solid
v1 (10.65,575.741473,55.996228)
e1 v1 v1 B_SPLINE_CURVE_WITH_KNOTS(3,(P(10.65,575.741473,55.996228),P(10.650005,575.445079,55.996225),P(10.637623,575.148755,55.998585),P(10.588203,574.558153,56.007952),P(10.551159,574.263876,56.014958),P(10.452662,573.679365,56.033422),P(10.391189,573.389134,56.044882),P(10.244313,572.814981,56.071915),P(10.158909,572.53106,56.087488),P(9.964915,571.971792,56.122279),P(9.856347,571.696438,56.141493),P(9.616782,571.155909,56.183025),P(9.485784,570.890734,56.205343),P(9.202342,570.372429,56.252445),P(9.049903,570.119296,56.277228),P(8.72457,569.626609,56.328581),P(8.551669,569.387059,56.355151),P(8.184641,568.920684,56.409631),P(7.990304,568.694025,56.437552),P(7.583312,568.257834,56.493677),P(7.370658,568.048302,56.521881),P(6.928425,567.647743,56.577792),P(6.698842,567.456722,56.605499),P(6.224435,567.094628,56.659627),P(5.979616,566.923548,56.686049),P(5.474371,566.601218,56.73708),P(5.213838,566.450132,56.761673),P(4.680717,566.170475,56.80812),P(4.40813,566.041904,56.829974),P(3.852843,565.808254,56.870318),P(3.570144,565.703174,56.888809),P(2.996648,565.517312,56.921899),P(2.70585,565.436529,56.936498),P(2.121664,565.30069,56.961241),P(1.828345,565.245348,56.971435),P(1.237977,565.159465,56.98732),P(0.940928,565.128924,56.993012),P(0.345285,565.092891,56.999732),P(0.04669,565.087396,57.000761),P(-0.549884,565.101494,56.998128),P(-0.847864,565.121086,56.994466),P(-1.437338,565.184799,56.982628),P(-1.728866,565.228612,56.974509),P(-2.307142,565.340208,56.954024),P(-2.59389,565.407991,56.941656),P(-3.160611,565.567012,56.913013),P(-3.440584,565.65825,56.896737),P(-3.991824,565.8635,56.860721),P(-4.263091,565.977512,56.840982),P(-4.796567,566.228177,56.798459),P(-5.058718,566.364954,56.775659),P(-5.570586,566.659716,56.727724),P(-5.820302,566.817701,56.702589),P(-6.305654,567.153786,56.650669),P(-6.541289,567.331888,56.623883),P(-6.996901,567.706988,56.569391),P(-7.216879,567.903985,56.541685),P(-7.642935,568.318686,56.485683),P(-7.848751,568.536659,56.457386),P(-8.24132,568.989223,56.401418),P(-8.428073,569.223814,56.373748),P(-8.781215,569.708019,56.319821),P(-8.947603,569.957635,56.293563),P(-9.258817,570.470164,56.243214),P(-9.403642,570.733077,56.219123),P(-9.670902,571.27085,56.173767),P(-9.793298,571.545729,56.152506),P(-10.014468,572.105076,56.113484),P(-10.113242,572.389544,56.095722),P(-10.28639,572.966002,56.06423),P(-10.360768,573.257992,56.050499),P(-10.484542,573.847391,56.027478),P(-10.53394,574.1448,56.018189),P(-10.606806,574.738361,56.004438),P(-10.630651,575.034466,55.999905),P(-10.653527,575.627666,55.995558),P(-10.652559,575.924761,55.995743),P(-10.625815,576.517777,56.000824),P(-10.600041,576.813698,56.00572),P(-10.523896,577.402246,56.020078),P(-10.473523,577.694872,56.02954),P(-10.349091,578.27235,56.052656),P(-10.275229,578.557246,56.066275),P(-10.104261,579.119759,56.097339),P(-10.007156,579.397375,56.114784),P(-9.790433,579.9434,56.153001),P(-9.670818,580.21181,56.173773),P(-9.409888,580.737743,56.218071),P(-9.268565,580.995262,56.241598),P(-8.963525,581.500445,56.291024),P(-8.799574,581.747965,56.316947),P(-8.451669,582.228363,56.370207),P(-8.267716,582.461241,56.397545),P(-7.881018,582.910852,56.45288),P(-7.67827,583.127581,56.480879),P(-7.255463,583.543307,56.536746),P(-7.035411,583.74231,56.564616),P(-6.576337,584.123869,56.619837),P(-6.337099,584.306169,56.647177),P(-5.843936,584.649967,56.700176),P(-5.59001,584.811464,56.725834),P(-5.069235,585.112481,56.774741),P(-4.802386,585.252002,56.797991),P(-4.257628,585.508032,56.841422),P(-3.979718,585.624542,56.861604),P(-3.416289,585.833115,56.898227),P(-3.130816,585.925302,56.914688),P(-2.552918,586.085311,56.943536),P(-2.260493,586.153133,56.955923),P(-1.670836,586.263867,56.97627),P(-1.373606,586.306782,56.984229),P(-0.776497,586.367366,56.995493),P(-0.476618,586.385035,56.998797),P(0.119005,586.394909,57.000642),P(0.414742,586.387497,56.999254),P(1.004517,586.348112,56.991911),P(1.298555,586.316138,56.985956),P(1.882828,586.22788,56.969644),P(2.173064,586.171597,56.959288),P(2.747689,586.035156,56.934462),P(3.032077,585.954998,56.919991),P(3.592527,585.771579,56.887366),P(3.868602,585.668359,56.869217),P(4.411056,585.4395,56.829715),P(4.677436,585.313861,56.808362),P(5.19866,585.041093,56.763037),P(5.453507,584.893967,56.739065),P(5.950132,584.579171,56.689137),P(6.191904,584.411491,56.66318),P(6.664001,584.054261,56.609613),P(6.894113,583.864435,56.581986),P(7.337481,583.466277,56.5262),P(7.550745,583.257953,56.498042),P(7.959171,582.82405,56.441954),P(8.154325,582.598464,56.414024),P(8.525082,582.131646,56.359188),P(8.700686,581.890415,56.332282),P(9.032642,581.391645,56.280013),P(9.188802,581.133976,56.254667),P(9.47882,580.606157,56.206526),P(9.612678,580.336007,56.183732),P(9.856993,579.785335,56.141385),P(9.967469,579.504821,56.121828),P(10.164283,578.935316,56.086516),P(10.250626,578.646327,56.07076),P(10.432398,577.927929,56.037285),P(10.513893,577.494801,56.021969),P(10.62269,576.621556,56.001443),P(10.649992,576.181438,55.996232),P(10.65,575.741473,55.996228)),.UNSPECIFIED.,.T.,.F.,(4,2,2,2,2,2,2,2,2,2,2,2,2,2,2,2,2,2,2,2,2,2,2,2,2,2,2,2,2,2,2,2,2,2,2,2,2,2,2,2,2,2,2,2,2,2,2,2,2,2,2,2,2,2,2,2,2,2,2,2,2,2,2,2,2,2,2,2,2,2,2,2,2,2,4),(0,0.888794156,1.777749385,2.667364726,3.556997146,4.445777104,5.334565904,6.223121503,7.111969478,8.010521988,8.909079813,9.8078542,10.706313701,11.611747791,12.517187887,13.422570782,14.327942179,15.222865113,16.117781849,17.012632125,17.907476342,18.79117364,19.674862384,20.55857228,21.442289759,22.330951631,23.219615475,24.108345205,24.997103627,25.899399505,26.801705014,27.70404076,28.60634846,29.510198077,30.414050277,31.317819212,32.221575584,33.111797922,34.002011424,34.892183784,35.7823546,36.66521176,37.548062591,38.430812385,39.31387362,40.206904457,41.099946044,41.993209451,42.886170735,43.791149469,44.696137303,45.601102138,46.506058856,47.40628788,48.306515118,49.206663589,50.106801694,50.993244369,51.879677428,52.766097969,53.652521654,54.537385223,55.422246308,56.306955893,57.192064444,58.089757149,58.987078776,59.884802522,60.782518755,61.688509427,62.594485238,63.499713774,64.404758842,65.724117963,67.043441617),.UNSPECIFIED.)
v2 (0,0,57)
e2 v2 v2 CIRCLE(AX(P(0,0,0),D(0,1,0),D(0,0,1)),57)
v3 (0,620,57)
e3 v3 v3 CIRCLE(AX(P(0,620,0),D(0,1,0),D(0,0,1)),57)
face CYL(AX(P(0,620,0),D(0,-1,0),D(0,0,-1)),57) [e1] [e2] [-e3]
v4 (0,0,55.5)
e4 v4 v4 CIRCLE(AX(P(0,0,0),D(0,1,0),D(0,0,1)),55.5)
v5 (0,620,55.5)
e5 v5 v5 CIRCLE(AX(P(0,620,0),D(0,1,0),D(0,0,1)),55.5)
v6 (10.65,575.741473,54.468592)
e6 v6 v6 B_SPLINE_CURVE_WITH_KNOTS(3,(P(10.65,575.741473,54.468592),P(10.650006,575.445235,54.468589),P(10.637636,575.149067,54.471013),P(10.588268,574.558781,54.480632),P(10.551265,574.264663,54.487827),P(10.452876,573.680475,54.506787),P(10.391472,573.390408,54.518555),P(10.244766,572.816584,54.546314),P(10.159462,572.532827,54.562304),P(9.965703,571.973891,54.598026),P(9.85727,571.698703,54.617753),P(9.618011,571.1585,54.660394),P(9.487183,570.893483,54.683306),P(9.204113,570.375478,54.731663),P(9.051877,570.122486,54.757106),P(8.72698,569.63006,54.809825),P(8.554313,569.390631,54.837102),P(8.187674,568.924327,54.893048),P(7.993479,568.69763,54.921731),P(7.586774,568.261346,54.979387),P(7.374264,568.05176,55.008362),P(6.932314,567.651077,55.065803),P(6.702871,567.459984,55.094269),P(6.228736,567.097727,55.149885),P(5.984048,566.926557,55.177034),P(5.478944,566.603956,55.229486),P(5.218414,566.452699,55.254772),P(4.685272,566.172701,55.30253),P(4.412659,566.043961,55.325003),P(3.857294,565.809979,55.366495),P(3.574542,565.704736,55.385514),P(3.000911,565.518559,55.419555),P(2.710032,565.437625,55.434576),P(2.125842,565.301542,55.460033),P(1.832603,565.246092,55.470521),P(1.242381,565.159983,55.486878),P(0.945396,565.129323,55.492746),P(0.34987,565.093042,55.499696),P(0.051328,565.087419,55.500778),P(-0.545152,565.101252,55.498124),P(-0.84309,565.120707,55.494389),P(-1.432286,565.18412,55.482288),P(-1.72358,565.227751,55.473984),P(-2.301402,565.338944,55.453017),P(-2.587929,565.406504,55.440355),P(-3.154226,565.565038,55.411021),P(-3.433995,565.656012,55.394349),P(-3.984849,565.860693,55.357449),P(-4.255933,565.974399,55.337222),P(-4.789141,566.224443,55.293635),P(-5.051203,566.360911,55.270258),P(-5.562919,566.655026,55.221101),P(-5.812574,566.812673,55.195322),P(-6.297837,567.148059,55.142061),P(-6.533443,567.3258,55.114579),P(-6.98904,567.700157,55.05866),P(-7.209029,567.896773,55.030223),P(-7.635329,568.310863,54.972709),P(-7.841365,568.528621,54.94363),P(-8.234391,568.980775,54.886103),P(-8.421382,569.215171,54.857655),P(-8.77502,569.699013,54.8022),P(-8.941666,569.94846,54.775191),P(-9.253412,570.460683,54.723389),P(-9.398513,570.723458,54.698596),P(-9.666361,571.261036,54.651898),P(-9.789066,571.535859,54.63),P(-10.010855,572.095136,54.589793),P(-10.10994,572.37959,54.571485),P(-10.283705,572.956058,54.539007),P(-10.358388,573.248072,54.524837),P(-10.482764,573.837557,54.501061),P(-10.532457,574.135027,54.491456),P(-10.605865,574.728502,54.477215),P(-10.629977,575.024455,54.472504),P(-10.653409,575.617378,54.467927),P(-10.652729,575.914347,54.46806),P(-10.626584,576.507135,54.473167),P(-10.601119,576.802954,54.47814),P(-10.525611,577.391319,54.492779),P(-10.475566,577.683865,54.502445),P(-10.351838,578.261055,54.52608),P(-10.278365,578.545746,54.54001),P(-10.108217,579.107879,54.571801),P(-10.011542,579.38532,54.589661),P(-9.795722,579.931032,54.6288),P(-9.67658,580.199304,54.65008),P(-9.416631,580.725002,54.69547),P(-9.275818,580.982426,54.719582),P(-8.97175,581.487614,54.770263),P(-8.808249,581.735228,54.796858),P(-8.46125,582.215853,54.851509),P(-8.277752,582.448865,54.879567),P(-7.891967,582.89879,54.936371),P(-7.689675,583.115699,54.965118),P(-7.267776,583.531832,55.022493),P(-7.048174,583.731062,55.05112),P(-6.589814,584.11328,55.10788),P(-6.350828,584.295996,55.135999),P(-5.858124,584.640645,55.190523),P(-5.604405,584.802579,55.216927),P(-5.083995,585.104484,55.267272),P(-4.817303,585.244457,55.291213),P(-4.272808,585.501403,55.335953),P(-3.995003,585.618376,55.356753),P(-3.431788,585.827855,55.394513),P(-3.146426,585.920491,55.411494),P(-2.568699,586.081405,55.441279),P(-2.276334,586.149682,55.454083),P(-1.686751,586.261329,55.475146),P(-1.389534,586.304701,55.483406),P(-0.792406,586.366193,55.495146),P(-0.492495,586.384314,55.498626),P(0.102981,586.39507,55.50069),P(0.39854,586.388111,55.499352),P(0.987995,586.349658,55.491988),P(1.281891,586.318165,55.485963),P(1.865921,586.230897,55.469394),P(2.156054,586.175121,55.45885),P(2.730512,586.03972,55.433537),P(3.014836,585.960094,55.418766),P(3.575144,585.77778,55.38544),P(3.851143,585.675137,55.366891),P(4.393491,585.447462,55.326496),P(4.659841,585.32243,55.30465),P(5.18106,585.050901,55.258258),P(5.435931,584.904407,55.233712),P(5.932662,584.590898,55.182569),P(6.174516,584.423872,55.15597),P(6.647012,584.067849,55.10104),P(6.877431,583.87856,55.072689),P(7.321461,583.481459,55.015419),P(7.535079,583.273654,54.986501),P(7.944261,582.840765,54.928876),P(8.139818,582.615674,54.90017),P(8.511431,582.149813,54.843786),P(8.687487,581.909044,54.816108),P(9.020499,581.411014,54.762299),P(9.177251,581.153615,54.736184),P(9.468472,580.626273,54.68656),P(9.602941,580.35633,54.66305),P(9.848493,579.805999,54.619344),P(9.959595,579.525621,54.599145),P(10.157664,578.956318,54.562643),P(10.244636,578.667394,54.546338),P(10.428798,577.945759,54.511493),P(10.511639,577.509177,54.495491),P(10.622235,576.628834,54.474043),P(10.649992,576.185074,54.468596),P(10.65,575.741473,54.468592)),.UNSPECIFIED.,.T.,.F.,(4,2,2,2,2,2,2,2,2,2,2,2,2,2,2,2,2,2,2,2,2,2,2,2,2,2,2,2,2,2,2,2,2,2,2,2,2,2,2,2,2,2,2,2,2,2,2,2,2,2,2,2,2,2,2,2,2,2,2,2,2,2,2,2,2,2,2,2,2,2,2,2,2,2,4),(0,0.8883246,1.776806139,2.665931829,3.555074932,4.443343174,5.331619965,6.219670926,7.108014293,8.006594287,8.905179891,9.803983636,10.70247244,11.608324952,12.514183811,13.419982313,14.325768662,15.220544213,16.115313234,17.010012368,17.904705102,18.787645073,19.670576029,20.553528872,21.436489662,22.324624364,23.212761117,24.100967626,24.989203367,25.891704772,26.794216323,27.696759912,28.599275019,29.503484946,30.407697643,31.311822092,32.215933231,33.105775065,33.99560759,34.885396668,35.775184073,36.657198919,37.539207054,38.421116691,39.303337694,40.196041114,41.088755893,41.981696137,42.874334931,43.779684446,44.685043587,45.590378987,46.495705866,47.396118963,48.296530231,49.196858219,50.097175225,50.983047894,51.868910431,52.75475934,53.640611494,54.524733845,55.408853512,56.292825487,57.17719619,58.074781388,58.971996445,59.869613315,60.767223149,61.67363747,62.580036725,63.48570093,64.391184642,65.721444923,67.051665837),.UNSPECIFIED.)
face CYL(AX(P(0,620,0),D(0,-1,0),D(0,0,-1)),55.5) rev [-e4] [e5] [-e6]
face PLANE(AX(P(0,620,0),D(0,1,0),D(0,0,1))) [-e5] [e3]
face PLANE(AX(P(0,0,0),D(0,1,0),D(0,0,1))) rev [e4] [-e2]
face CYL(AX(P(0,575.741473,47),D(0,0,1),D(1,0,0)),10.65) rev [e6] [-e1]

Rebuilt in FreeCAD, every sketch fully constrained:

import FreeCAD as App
import Part
import Sketcher

V = App.Vector
Q = App.Units.Quantity

doc = App.newDocument("Part")
params = doc.addObject("Spreadsheet::Sheet", "Params")
for row, (alias, value) in enumerate([
    ("sketch1_diameter", "114 mm"),
    ("sketch1_diameter2", "111 mm"),
    ("pad1_length", "620 mm"),
    ("sketch2_diameter", "21.3 mm"),
    ("pocket1_length", "10 mm"),
], start=1):
    params.set(f"A{row}", alias)
    params.set(f"B{row}", "=" + value)
    params.setAlias(f"B{row}", alias)

body = doc.addObject("PartDesign::Body", "Body")

# Sketch on XZ plane
sketch1 = body.newObject("Sketcher::SketchObject", "Sketch")
sketch1.AttachmentSupport = (doc.getObject("XZ_Plane"), [""])
sketch1.MapMode = "FlatFace"
sketch1.addGeometry([
    Part.Circle(V(0, 0, 0), V(0, 0, 1), 57),
    Part.Circle(V(0, 0, 0), V(0, 0, 1), 56),
], False)
sketch1.addConstraint([
    Sketcher.Constraint("Coincident", 0, 3, -1, 1),
    Sketcher.Constraint("Coincident", 1, 3, -1, 1),
    Sketcher.Constraint("Diameter", 0, Q("114 mm")),
    Sketcher.Constraint("Diameter", 1, Q("111 mm")),
])
sketch1.setExpression("Constraints[2]", "Params.sketch1_diameter")
sketch1.setExpression("Constraints[3]", "Params.sketch1_diameter2")
pad1 = body.newObject("PartDesign::Pad", "Pad")
pad1.Profile = sketch1
pad1.setExpression("Length", "Params.pad1_length")
pad1.Reversed = True

# Sketch on XY plane
sketch2 = body.newObject("Sketcher::SketchObject", "Sketch001")
sketch2.AttachmentSupport = (doc.getObject("XY_Plane"), [""])
sketch2.MapMode = "FlatFace"
sketch2.AttachmentOffset = App.Placement(V(0, 0, 57), App.Rotation())
sketch2.addGeometry(Part.Circle(V(0, 576, 0), V(0, 0, 1), 11), False)
sketch2.addConstraint([
    Sketcher.Constraint("PointOnObject", 0, 3, -2),
    Sketcher.Constraint("Diameter", 0, Q("21.3 mm")),
    Sketcher.Constraint("DistanceY", -1, 1, 0, 3, Q("575.741473 mm")),
])
sketch2.setExpression("Constraints[1]", "Params.sketch2_diameter")
pocket1 = body.newObject("PartDesign::Pocket", "Pocket")
pocket1.Profile = sketch2
pocket1.setExpression("Length", "Params.pocket1_length")

doc.recompute()
